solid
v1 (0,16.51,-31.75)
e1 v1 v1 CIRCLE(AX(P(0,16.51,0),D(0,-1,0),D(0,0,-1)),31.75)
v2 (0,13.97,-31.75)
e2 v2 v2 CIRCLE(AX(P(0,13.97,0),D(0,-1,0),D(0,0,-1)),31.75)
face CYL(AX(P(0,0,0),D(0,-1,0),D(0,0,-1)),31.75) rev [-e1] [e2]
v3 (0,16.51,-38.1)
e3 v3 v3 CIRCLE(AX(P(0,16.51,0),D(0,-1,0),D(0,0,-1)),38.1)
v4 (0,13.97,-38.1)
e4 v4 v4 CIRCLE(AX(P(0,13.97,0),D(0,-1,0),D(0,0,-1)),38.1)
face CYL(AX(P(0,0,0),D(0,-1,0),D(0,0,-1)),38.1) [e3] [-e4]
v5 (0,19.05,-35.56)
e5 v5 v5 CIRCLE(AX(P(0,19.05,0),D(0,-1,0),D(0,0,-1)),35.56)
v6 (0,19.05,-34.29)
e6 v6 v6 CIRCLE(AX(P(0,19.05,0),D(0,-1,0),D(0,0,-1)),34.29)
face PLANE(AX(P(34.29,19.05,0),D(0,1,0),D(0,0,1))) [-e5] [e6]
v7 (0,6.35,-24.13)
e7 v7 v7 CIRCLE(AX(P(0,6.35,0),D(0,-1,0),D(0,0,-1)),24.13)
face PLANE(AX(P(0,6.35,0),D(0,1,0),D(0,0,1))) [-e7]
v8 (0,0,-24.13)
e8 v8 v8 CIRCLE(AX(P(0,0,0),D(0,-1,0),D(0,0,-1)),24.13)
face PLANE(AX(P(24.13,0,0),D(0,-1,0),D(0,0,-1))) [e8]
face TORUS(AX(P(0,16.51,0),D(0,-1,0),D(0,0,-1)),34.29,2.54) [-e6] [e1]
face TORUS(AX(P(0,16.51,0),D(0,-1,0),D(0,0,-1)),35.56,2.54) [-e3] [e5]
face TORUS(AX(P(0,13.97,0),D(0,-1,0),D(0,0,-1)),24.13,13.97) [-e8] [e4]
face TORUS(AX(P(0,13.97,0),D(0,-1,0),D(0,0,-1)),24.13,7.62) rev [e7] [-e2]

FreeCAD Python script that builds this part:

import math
import FreeCAD as App
import Part
import Sketcher

V = App.Vector
Q = App.Units.Quantity

doc = App.newDocument("Part")
params = doc.addObject("Spreadsheet::Sheet", "Params")
for row, (alias, value) in enumerate([
    ("sketch1_radius", "0.1 in"),
    ("sketch1_radius2", "0.3 in"),
    ("sketch1_radius3", "0.55 in"),
    ("sketch1_height", "0.1 in"),
    ("sketch1_width", "0.95 in"),
    ("revolution_angle", "360 deg"),
], start=1):
    params.set(f"A{row}", alias)
    params.set(f"B{row}", "=" + value)
    params.setAlias(f"B{row}", alias)

body = doc.addObject("PartDesign::Body", "Body")

sketch1 = body.newObject("Sketcher::SketchObject", "Sketch")
sketch1.AttachmentSupport = (doc.getObject("XY_Plane"), [""])
sketch1.MapMode = "FlatFace"
sketch1.addGeometry([
    Part.LineSegment(V(0, 6.3, 0), V(0, 0, 0)),
    Part.LineSegment(V(0, 0, 0), V(24.1, 0, 0)),
    Part.ArcOfCircle(Part.Circle(V(24.1, 14, 0), V(0, 0, 1), 14), math.radians(-90), math.radians(0)),
    Part.LineSegment(V(38.1, 14, 0), V(38.1, 16.5, 0)),
    Part.ArcOfCircle(Part.Circle(V(35.6, 16.5, 0), V(0, 0, 1), 2.5), math.radians(0), math.radians(90)),
    Part.LineSegment(V(35.6, 19.1, 0), V(34.3, 19.1, 0)),
    Part.ArcOfCircle(Part.Circle(V(34.3, 16.5, 0), V(0, 0, 1), 2.5), math.radians(90), math.radians(180)),
    Part.LineSegment(V(31.8, 16.5, 0), V(31.8, 14, 0)),
    Part.ArcOfCircle(Part.Circle(V(24.1, 14, 0), V(0, 0, 1), 7.6), math.radians(-90), math.radians(0)),
    Part.LineSegment(V(24.1, 6.3, 0), V(0, 6.3, 0)),
], False)
sketch1.addConstraint([
    Sketcher.Constraint("Coincident", 0, 2, 1, 1),
    Sketcher.Constraint("Tangent", 1, 2, 2, 1),
    Sketcher.Constraint("Tangent", 2, 2, 3, 1),
    Sketcher.Constraint("Tangent", 3, 2, 4, 1),
    Sketcher.Constraint("Tangent", 4, 2, 5, 1),
    Sketcher.Constraint("Tangent", 5, 2, 6, 1),
    Sketcher.Constraint("Tangent", 6, 2, 7, 1),
    Sketcher.Constraint("Tangent", 7, 2, 8, 2),
    Sketcher.Constraint("Tangent", 8, 1, 9, 1),
    Sketcher.Constraint("Coincident", 9, 2, 0, 1),
    Sketcher.Constraint("Vertical", 0),
    Sketcher.Constraint("Horizontal", 1),
    Sketcher.Constraint("Vertical", 3),
    Sketcher.Constraint("Horizontal", 5),
    Sketcher.Constraint("Vertical", 7),
    Sketcher.Constraint("Horizontal", 9),
    Sketcher.Constraint("Coincident", 0, 2, -1, 1),
    Sketcher.Constraint("Coincident", 8, 3, 2, 3),
    Sketcher.Constraint("Equal", 4, 6),
    Sketcher.Constraint("Radius", 4, Q("0.1 in")),
    Sketcher.Constraint("Radius", 8, Q("0.3 in")),
    Sketcher.Constraint("Radius", 2, Q("0.55 in")),
    Sketcher.Constraint("DistanceY", 3, 1, 3, 2, Q("0.1 in")),
    Sketcher.Constraint("DistanceX", 1, 1, 1, 2, Q("0.95 in")),
])
sketch1.setExpression("Constraints[19]", "Params.sketch1_radius")
sketch1.setExpression("Constraints[20]", "Params.sketch1_radius2")
sketch1.setExpression("Constraints[21]", "Params.sketch1_radius3")
sketch1.setExpression("Constraints[22]", "Params.sketch1_height")
sketch1.setExpression("Constraints[23]", "Params.sketch1_width")
revolution = body.newObject("PartDesign::Revolution", "Revolution")
revolution.Profile = sketch1
revolution.ReferenceAxis = (sketch1, ["V_Axis"])
revolution.setExpression("Angle", "Params.revolution_angle")

doc.recompute()
